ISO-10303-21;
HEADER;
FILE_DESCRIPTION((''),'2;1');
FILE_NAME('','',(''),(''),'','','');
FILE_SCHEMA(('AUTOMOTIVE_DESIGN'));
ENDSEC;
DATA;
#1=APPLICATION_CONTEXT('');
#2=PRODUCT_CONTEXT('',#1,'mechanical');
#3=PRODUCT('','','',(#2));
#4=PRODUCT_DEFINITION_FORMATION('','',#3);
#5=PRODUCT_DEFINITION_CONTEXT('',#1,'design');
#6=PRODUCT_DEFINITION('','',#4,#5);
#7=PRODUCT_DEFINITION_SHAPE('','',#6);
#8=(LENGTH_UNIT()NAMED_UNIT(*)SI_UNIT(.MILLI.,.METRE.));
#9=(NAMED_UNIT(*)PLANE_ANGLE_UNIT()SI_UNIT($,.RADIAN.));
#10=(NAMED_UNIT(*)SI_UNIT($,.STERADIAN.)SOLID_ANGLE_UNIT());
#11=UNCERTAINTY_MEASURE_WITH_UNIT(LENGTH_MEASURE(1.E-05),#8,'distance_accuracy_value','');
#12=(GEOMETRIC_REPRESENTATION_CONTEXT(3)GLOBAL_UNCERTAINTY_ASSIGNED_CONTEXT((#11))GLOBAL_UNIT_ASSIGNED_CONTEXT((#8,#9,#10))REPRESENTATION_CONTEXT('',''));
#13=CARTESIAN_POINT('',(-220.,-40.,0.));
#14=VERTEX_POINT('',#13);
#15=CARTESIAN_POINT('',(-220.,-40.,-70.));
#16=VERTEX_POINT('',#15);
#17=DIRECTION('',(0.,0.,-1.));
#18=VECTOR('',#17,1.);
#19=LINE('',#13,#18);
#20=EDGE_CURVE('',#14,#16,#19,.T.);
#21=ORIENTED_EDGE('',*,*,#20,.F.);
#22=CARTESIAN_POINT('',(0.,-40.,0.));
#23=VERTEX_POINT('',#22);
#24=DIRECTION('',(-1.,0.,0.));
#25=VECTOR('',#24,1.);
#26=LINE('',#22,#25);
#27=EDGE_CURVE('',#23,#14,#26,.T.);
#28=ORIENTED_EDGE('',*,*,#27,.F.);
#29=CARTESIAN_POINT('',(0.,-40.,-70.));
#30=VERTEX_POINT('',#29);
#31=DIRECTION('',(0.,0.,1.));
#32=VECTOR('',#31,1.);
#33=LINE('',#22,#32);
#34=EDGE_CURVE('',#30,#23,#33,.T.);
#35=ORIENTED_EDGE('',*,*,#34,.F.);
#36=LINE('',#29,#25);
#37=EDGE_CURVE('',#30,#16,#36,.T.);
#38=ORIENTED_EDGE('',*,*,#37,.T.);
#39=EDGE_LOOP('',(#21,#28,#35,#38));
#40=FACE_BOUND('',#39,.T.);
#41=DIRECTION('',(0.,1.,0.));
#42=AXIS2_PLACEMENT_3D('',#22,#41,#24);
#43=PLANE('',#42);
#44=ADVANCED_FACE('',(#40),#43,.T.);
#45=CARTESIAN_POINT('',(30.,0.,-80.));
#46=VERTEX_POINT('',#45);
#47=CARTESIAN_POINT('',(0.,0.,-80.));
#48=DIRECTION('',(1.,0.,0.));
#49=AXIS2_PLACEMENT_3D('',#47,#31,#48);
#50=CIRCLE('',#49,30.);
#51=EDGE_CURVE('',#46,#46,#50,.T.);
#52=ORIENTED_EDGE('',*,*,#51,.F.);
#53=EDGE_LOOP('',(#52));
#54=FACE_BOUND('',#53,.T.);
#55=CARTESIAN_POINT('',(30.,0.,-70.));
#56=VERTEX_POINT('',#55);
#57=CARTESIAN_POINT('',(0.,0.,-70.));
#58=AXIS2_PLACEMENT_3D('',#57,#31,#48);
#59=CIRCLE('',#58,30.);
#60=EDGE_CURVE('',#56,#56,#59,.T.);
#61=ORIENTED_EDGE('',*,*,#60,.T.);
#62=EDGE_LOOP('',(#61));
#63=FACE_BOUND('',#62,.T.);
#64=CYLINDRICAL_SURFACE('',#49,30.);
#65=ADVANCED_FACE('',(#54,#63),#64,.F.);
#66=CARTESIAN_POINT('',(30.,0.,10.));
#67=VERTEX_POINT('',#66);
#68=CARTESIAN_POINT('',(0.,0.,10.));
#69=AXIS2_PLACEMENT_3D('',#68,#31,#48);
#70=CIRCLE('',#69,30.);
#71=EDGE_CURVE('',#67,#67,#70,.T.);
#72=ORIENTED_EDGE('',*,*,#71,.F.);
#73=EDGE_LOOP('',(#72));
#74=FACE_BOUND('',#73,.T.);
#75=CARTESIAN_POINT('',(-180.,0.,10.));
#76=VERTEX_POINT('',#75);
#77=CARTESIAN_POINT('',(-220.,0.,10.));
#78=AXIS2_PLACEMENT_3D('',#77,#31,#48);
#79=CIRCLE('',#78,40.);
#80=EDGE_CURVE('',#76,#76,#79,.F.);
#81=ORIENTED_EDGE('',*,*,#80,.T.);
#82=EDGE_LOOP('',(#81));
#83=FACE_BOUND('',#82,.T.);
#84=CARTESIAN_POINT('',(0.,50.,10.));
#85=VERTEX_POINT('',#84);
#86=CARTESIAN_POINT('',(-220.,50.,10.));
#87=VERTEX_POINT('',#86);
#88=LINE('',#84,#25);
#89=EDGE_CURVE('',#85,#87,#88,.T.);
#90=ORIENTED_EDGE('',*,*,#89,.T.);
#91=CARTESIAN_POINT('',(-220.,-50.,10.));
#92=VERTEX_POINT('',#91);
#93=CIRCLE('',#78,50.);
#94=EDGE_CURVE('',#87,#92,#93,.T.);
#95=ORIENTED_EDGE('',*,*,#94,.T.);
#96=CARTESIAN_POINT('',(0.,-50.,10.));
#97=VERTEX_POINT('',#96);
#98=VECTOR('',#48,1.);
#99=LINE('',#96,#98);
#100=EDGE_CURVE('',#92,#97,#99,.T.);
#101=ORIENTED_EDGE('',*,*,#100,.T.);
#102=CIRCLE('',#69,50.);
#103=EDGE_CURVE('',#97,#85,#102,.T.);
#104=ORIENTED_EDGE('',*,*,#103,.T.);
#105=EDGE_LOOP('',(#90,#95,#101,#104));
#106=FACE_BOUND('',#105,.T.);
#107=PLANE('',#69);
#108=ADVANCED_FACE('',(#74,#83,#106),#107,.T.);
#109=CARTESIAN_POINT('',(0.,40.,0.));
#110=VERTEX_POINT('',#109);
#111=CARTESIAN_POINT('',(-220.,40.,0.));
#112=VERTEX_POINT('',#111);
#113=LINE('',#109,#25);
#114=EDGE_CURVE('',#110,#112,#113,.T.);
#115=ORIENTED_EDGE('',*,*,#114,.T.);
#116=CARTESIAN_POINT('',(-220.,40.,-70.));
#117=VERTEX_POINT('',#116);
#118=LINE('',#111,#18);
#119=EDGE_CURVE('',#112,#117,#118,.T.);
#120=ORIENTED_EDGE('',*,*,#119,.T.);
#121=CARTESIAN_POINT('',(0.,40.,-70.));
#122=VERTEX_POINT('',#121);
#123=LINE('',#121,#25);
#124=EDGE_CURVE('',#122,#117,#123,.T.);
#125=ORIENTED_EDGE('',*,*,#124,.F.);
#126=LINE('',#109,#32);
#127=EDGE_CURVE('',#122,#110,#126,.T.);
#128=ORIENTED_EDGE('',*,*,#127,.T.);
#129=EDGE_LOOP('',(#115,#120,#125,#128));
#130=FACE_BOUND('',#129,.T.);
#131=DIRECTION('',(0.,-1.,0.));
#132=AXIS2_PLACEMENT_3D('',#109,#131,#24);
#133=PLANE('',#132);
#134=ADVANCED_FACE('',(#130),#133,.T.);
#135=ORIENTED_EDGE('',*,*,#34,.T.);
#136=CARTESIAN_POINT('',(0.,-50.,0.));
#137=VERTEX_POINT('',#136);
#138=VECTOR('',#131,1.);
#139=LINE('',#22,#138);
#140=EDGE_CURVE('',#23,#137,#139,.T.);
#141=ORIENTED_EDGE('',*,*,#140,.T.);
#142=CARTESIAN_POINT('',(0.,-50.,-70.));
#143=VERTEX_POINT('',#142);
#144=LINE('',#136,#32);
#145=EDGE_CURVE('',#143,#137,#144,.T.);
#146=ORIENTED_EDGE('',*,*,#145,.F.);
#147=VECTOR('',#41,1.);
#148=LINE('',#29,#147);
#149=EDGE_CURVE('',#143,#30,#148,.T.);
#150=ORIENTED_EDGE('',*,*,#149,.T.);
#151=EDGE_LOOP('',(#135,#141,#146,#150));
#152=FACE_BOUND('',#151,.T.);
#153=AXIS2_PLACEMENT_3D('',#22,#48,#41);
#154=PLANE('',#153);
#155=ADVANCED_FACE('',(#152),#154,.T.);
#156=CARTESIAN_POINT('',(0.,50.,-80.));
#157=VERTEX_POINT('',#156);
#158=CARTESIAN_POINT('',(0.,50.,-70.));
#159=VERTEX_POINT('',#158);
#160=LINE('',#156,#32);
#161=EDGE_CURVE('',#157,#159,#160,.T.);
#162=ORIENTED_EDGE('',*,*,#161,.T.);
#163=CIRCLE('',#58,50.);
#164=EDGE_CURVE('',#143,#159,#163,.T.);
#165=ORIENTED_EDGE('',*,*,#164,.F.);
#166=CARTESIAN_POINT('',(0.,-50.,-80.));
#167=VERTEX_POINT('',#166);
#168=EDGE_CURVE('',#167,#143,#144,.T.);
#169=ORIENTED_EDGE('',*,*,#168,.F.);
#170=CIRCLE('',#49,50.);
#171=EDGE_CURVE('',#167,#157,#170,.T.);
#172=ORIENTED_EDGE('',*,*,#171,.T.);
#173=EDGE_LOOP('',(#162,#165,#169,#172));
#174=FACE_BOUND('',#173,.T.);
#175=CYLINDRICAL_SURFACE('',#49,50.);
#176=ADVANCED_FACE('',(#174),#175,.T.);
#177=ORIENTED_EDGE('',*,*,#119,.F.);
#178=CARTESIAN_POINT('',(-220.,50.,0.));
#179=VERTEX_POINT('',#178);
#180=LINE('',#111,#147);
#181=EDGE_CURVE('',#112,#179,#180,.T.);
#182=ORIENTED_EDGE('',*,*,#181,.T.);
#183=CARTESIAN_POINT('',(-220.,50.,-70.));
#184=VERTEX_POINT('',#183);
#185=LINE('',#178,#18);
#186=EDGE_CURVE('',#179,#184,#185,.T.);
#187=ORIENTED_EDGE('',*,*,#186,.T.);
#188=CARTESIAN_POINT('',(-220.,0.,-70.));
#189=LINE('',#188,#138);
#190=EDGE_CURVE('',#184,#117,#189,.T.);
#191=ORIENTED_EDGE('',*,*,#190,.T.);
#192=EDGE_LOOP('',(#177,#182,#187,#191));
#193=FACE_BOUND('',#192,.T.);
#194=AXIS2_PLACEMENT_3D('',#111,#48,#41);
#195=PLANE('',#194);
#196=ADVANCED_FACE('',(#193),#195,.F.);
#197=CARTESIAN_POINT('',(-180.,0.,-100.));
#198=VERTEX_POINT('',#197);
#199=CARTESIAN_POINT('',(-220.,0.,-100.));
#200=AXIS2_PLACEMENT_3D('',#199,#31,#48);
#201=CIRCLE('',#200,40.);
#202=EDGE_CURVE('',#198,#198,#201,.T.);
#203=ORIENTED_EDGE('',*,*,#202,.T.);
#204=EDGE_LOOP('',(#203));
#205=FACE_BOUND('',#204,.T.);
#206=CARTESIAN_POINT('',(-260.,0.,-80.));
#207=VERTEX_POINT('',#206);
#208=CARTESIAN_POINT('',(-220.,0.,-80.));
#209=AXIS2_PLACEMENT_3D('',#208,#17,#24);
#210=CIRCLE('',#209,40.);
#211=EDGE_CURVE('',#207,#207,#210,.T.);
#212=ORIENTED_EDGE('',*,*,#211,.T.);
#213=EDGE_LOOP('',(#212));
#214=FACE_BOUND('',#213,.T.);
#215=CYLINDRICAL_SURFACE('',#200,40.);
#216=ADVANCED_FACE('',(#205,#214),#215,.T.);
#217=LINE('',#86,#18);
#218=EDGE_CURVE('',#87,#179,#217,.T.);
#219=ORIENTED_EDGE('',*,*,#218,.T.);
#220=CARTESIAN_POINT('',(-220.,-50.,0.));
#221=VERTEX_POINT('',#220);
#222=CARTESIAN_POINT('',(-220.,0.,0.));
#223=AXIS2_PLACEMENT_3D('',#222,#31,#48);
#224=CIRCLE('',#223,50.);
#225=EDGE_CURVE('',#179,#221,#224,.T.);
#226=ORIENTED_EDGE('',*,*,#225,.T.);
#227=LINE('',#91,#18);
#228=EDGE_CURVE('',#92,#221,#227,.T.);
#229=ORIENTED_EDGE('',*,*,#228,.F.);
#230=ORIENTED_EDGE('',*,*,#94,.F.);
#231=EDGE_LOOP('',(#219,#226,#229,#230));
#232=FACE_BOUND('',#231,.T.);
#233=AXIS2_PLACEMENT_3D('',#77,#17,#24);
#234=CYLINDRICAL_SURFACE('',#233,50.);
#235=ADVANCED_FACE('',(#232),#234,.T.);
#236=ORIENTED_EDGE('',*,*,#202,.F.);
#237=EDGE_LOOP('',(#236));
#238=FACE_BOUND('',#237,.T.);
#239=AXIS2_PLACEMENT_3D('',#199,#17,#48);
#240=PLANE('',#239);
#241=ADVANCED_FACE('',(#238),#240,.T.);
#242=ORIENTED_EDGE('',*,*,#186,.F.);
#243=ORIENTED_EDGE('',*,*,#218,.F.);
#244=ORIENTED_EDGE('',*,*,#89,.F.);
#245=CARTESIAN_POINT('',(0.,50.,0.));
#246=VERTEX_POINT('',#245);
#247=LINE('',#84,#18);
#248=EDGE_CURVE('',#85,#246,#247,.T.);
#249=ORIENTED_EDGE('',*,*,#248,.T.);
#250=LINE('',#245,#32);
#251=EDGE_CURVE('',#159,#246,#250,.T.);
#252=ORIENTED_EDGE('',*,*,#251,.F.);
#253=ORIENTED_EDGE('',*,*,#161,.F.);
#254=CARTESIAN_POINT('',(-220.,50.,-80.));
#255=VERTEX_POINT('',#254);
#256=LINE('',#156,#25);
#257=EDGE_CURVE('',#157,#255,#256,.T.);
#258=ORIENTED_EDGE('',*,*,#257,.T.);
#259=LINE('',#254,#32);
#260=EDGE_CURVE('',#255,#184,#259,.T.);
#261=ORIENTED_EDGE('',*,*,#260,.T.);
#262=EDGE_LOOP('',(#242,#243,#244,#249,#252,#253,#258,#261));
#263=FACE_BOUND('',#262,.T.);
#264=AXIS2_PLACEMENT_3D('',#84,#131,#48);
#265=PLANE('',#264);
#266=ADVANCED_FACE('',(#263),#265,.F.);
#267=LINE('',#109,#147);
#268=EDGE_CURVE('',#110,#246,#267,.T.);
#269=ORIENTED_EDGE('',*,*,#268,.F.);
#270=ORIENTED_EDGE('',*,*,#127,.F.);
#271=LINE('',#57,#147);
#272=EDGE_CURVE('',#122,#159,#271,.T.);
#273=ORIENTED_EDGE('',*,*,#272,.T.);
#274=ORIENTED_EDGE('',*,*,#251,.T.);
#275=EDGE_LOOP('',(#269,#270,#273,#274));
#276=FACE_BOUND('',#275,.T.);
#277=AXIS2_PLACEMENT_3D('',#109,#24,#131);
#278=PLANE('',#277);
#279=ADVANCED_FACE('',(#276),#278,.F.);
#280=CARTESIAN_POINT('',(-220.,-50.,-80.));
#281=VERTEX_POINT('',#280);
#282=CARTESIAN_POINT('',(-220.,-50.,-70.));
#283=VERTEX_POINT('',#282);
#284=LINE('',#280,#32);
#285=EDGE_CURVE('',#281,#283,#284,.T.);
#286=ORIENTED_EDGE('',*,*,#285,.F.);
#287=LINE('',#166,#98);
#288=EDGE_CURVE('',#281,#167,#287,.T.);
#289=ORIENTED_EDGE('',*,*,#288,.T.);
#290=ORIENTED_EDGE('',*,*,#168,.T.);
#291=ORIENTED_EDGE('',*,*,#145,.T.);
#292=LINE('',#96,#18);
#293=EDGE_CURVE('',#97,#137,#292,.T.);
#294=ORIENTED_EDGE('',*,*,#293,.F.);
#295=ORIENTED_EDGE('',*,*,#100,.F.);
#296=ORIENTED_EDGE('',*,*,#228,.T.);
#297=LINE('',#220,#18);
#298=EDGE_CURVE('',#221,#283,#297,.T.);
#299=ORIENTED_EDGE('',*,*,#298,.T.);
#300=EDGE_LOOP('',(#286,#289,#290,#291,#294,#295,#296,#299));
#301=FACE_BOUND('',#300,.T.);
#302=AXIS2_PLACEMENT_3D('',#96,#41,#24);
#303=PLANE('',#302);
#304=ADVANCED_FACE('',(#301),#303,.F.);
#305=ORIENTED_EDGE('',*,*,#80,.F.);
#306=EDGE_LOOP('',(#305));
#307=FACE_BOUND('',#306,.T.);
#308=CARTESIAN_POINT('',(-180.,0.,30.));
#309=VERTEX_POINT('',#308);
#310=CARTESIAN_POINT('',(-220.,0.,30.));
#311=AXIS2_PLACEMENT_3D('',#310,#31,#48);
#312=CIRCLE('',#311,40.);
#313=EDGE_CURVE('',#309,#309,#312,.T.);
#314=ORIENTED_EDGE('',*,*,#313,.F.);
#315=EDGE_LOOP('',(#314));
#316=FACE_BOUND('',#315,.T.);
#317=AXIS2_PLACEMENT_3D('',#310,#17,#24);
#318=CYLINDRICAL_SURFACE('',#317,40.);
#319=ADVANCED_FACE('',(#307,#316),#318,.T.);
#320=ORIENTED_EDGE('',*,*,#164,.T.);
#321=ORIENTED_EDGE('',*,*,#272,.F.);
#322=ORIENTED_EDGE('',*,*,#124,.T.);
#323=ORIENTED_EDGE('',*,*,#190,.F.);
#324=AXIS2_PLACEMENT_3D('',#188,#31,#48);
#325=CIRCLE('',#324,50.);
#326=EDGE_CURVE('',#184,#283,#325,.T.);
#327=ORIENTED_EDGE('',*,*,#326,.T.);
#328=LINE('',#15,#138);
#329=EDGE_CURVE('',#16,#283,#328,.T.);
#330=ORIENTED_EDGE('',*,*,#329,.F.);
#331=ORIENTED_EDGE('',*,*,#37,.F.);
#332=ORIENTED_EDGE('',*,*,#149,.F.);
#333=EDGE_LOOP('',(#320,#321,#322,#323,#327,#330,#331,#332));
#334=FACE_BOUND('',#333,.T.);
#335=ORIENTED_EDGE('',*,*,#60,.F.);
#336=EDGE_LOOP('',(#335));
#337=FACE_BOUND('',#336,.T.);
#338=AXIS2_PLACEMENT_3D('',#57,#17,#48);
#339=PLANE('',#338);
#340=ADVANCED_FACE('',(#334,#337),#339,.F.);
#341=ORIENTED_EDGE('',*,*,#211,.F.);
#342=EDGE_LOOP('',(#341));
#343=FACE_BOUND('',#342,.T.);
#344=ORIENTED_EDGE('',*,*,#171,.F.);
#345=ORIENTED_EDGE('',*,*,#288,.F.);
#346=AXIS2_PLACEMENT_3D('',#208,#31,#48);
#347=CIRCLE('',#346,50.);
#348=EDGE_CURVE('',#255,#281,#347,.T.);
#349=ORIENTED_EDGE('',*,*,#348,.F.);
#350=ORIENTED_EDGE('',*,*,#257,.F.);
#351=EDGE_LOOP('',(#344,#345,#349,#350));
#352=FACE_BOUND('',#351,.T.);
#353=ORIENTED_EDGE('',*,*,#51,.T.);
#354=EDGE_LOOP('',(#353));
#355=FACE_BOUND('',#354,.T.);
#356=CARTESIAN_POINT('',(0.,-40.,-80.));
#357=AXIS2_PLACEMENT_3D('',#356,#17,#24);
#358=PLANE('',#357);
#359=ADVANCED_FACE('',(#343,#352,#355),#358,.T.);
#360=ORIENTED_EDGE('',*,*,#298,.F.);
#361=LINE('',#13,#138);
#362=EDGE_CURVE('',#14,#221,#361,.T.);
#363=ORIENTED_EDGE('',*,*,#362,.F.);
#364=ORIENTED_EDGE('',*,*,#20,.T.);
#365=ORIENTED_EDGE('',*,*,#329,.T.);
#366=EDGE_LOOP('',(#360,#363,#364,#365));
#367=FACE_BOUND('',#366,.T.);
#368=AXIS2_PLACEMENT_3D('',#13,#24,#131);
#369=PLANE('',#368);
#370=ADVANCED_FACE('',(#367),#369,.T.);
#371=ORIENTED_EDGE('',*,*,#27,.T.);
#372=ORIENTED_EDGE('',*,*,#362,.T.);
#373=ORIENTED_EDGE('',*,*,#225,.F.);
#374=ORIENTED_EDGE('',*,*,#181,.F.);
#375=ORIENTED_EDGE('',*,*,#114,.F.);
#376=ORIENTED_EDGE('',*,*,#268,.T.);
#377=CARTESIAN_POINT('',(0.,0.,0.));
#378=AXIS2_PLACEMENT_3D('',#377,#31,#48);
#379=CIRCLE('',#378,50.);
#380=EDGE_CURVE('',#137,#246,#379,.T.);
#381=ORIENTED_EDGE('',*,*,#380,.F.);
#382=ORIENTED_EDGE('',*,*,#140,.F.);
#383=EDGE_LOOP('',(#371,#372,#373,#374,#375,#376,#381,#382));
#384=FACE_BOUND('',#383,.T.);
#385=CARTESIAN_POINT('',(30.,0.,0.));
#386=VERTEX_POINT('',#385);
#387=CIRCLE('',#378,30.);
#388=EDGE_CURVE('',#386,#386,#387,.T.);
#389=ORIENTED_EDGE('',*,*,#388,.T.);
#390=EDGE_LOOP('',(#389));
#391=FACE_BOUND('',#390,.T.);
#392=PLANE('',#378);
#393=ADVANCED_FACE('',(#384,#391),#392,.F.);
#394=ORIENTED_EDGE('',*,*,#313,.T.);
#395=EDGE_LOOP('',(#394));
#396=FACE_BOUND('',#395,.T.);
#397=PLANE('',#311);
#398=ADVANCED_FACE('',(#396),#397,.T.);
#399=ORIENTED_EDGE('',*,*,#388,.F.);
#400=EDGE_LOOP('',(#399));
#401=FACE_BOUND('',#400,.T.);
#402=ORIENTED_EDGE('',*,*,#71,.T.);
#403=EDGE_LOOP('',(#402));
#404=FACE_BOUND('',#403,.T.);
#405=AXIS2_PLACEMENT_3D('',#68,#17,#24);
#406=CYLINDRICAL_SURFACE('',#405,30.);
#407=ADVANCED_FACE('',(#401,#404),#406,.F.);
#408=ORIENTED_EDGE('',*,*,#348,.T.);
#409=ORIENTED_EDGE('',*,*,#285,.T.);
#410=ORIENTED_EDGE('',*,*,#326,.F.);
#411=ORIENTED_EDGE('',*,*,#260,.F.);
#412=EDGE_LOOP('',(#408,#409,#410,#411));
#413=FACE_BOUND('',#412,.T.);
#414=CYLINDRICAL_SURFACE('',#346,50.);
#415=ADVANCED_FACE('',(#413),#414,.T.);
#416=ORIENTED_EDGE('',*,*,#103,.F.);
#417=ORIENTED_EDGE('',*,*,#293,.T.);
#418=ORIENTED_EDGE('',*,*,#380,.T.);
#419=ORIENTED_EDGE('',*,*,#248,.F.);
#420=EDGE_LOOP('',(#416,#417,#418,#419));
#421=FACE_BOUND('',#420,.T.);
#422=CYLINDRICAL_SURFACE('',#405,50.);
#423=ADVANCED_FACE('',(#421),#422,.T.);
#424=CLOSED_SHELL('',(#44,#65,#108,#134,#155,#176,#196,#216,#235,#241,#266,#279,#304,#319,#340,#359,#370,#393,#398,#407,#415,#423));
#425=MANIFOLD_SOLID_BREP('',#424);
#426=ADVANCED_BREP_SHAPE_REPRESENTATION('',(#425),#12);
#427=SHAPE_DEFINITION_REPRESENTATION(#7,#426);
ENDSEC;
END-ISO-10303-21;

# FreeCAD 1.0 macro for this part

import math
import FreeCAD as App
import Part
import Sketcher
from FreeCAD import Vector


def add_polygon(sketch, points):
    """Adds a closed chain of lines whose ends are joined by coincident constraints."""
    first, n = sketch.GeometryCount, len(points)
    for a, b in zip(points, points[1:] + points[:1]):
        sketch.addGeometry(Part.LineSegment(App.Vector(*a, 0), App.Vector(*b, 0)), False)
    for i in range(n):
        sketch.addConstraint(Sketcher.Constraint("Coincident", first + i, 2, first + (i + 1) % n, 1))

doc = App.newDocument("Part")
params = doc.addObject("Spreadsheet::Sheet", "Params")
for row, (alias, value) in enumerate([
    ("sketch1_diameter", "60 mm"),
    ("sketch1_radius", "50 mm"),
    ("sketch1_width", "220 mm"),
    ("pad1_length", "10 mm"),
    ("sketch2_width", "220 mm"),
    ("sketch2_height", "80 mm"),
    ("pad2_length", "10 mm"),
    ("sketch3_diameter", "80 mm"),
    ("pad3_length", "30 mm"),
], start=1):
    params.set(f"A{row}", alias)
    params.set(f"B{row}", "=" + value)
    params.setAlias(f"B{row}", alias)

body = doc.addObject("PartDesign::Body", "Body")

# Sketch on XY plane
sketch1 = body.newObject("Sketcher::SketchObject", "Sketch")
sketch1.AttachmentSupport = (doc.getObject("XY_Plane"), [""])
sketch1.MapMode = "FlatFace"
sketch1.addGeometry(Part.LineSegment(Vector(-220, -50, 0), Vector(0, -50, 0)), False)
sketch1.addGeometry(Part.ArcOfCircle(Part.Circle(Vector(0, 0, 0), Vector(0, 0, 1), 50), math.radians(-90), math.radians(90)), False)
sketch1.addGeometry(Part.LineSegment(Vector(0, 50, 0), Vector(-220, 50, 0)), False)
sketch1.addGeometry(Part.ArcOfCircle(Part.Circle(Vector(-220, 0, 0), Vector(0, 0, 1), 50), math.radians(90), math.radians(270)), False)
sketch1.addGeometry(Part.Circle(Vector(0, 0, 0), Vector(0, 0, 1), 30), False)
sketch1.addConstraint(Sketcher.Constraint("Tangent", 0, 2, 1, 1))
sketch1.addConstraint(Sketcher.Constraint("Tangent", 1, 2, 2, 1))
sketch1.addConstraint(Sketcher.Constraint("Tangent", 2, 2, 3, 1))
sketch1.addConstraint(Sketcher.Constraint("Tangent", 3, 2, 0, 1))
sketch1.addConstraint(Sketcher.Constraint("Horizontal", 0))
sketch1.addConstraint(Sketcher.Constraint("Horizontal", 2))
sketch1.addConstraint(Sketcher.Constraint("Coincident", 1, 3, -1, 1))
sketch1.addConstraint(Sketcher.Constraint("Coincident", 4, 3, -1, 1))
sketch1.addConstraint(Sketcher.Constraint("Diameter", 4, 60.0))
sketch1.addConstraint(Sketcher.Constraint("Radius", 1, 50.0))
sketch1.addConstraint(Sketcher.Constraint("DistanceX", 0, 1, 0, 2, 220.0))
sketch1.setExpression("Constraints[8]", "Params.sketch1_diameter")
sketch1.setExpression("Constraints[9]", "Params.sketch1_radius")
sketch1.setExpression("Constraints[10]", "Params.sketch1_width")
pad1 = body.newObject("PartDesign::Pad", "Pad")
pad1.Profile = sketch1
pad1.setExpression("Length", "Params.pad1_length")

# Sketch on XZ plane
sketch2 = body.newObject("Sketcher::SketchObject", "Sketch001")
sketch2.AttachmentSupport = (doc.getObject("XZ_Plane"), [""])
sketch2.MapMode = "FlatFace"
sketch2.AttachmentOffset = App.Placement(Vector(0, 0, 50), App.Rotation())
add_polygon(sketch2, [(-220, 0), (-220, -80), (0, -80), (0, 0)])  # lines 0-3
sketch2.addConstraint(Sketcher.Constraint("Vertical", 0))
sketch2.addConstraint(Sketcher.Constraint("Horizontal", 1))
sketch2.addConstraint(Sketcher.Constraint("Vertical", 2))
sketch2.addConstraint(Sketcher.Constraint("Horizontal", 3))
sketch2.addConstraint(Sketcher.Constraint("Coincident", 2, 2, -1, 1))
sketch2.addConstraint(Sketcher.Constraint("DistanceX", 1, 1, 1, 2, 220.0))
sketch2.addConstraint(Sketcher.Constraint("DistanceY", 0, 2, 0, 1, 80.0))
sketch2.setExpression("Constraints[9]", "Params.sketch2_width")
sketch2.setExpression("Constraints[10]", "Params.sketch2_height")
pad2 = body.newObject("PartDesign::Pad", "Pad001")
pad2.Profile = sketch2
pad2.setExpression("Length", "Params.pad2_length")
pad2.Reversed = True

# Sketch on XY plane
sketch3 = body.newObject("Sketcher::SketchObject", "Sketch002")
sketch3.AttachmentSupport = (doc.getObject("XY_Plane"), [""])
sketch3.MapMode = "FlatFace"
sketch3.addGeometry(Part.Circle(Vector(-220, 0, 0), Vector(0, 0, 1), 40), False)
sketch3.addConstraint(Sketcher.Constraint("PointOnObject", 0, 3, -1))
sketch3.addConstraint(Sketcher.Constraint("Diameter", 0, 80.0))
sketch3.addConstraint(Sketcher.Constraint("DistanceX", 0, 3, -1, 1, 220.0))
sketch3.setExpression("Constraints[1]", "Params.sketch3_diameter")
pad3 = body.newObject("PartDesign::Pad", "Pad002")
pad3.Profile = sketch3
pad3.setExpression("Length", "Params.pad3_length")
doc.recompute()

datumplane = body.newObject("PartDesign::Plane", "DatumPlane")
datumplane.AttachmentSupport = (doc.getObject("XY_Plane"), [""])
datumplane.MapMode = "FlatFace"
datumplane.AttachmentOffset = App.Placement(Vector(0, 0, -35), App.Rotation())
mirrored = body.newObject("PartDesign::Mirrored", "Mirrored")
mirrored.Originals = [pad1, pad2, pad3]
mirrored.MirrorPlane = (datumplane, [""])
body.Tip = mirrored
doc.recompute()

mirrored2 = body.newObject("PartDesign::Mirrored", "Mirrored001")
mirrored2.Originals = [pad2]
mirrored2.MirrorPlane = (doc.getObject("XZ_Plane"), [""])
body.Tip = mirrored2

doc.recompute()
